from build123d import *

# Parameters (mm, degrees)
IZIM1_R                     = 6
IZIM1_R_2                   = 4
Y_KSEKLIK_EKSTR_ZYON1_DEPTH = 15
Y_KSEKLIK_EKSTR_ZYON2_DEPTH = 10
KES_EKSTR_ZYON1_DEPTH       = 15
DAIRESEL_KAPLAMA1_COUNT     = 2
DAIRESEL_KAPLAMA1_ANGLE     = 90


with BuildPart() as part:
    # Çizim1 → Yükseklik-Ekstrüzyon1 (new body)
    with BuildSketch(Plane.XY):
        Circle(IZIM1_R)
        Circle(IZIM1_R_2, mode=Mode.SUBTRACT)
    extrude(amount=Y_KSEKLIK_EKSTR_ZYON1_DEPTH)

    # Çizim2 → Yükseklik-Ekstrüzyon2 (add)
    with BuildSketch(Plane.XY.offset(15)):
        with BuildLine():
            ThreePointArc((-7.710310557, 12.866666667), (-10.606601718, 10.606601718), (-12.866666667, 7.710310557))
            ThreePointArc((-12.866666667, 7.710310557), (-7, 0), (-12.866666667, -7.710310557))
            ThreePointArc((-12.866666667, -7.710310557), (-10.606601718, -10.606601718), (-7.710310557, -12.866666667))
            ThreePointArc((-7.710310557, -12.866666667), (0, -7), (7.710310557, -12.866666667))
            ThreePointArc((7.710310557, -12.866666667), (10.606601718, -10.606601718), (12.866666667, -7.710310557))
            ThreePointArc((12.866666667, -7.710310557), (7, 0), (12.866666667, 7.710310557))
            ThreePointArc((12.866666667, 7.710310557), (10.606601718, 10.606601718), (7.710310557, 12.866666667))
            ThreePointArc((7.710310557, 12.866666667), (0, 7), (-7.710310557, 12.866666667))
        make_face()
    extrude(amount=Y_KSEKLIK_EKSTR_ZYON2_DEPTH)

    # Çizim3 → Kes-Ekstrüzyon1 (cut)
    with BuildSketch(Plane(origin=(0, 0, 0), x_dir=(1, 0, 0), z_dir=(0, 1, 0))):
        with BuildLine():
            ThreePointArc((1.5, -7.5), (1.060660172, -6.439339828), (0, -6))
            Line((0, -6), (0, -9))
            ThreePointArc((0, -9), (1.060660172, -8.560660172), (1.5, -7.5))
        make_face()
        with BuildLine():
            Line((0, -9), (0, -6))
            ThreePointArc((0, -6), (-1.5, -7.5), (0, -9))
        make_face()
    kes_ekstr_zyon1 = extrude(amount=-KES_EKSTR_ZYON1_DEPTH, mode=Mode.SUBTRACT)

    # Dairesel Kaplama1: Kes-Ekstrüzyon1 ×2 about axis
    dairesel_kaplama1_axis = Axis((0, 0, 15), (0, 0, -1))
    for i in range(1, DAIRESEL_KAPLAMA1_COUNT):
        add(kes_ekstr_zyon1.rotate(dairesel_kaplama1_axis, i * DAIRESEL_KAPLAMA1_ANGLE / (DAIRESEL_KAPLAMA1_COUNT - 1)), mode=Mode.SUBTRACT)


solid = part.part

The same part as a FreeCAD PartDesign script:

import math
import FreeCAD as App
import Part
import Sketcher
Q = App.Units.Quantity

doc = App.newDocument("Part")
body = doc.addObject("PartDesign::Body", "Body")

sketch1 = body.newObject("Sketcher::SketchObject", "Sketch")
sketch1.AttachmentSupport = (doc.getObject("XY_Plane"), [""])
sketch1.MapMode = "FlatFace"
sketch1.addGeometry([
    Part.Circle(App.Vector(0, 0, 0), App.Vector(0, 0, 1), 6),
    Part.Circle(App.Vector(0, 0, 0), App.Vector(0, 0, 1), 4),
], False)
sketch1.addConstraint([
    Sketcher.Constraint("Coincident", 0, 3, -1, 1),
    Sketcher.Constraint("Coincident", 1, 3, -1, 1),
    Sketcher.Constraint("Diameter", 0, Q("12 mm")),
    Sketcher.Constraint("Diameter", 1, Q("8 mm")),
])
pad1 = body.newObject("PartDesign::Pad", "Pad")
pad1.Profile = sketch1
pad1.Length = 15

sketch2 = body.newObject("Sketcher::SketchObject", "Sketch001")
sketch2.AttachmentSupport = (doc.getObject("XY_Plane"), [""])
sketch2.MapMode = "FlatFace"
sketch2.AttachmentOffset = App.Placement(App.Vector(0, 0, 15), App.Rotation())
sketch2.addGeometry([
    Part.ArcOfCircle(Part.Circle(App.Vector(0, 0, 0), App.Vector(0, 0, 1), 15), math.radians(121), math.radians(149)),
    Part.ArcOfCircle(Part.Circle(App.Vector(-15, 0, 0), App.Vector(0, 0, 1), 8), math.radians(-75), math.radians(75)),
    Part.ArcOfCircle(Part.Circle(App.Vector(0, 0, 0), App.Vector(0, 0, 1), 15), math.radians(-149), math.radians(-121)),
    Part.ArcOfCircle(Part.Circle(App.Vector(0, -15, 0), App.Vector(0, 0, 1), 8), math.radians(15), math.radians(165)),
    Part.ArcOfCircle(Part.Circle(App.Vector(0, 0, 0), App.Vector(0, 0, 1), 15), math.radians(-59), math.radians(-31)),
    Part.ArcOfCircle(Part.Circle(App.Vector(15, 0, 0), App.Vector(0, 0, 1), 8), math.radians(105), math.radians(255)),
    Part.ArcOfCircle(Part.Circle(App.Vector(0, 0, 0), App.Vector(0, 0, 1), 15), math.radians(31), math.radians(59)),
    Part.ArcOfCircle(Part.Circle(App.Vector(0, 15, 0), App.Vector(0, 0, 1), 8), math.radians(-165), math.radians(-15)),
], False)
sketch2.addConstraint([
    Sketcher.Constraint("Coincident", 0, 2, 1, 2),
    Sketcher.Constraint("Coincident", 1, 1, 2, 1),
    Sketcher.Constraint("Coincident", 2, 2, 3, 2),
    Sketcher.Constraint("Coincident", 3, 1, 4, 1),
    Sketcher.Constraint("Coincident", 4, 2, 5, 2),
    Sketcher.Constraint("Coincident", 5, 1, 6, 1),
    Sketcher.Constraint("Coincident", 6, 2, 7, 2),
    Sketcher.Constraint("Coincident", 7, 1, 0, 1),
    Sketcher.Constraint("Coincident", 0, 3, -1, 1),
    Sketcher.Constraint("Coincident", 2, 3, -1, 1),
    Sketcher.Constraint("Coincident", 4, 3, -1, 1),
    Sketcher.Constraint("Coincident", 6, 3, -1, 1),
    Sketcher.Constraint("Equal", 0, 2),
    Sketcher.Constraint("Equal", 1, 3),
    Sketcher.Constraint("Equal", 2, 4),
    Sketcher.Constraint("Equal", 3, 5),
    Sketcher.Constraint("Equal", 4, 6),
    Sketcher.Constraint("Equal", 5, 7),
    Sketcher.Constraint("Symmetric", 1, 3, 5, 3, -1, 1),
    Sketcher.Constraint("Symmetric", 3, 3, 7, 3, -1, 1),
    Sketcher.Constraint("PointOnObject", 1, 3, -1),
    Sketcher.Constraint("PointOnObject", 3, 3, -2),
    Sketcher.Constraint("Radius", 0, Q("15 mm")),
    Sketcher.Constraint("Radius", 1, Q("8 mm")),
    Sketcher.Constraint("DistanceX", 1, 3, -1, 1, Q("15 mm")),
    Sketcher.Constraint("DistanceY", 3, 3, -1, 1, Q("15 mm")),
])
pad2 = body.newObject("PartDesign::Pad", "Pad001")
pad2.Profile = sketch2
pad2.Length = 10

sketch3 = body.newObject("Sketcher::SketchObject", "Sketch002")
sketch3.AttachmentSupport = (doc.getObject("XZ_Plane"), [""])
sketch3.MapMode = "FlatFace"
sketch3.addGeometry([
    Part.ArcOfCircle(Part.Circle(App.Vector(0, 7.5, 0), App.Vector(0, 0, 1), 1.5), math.radians(-90), math.radians(0)),
    Part.ArcOfCircle(Part.Circle(App.Vector(0, 7.5, 0), App.Vector(0, 0, 1), 1.5), math.radians(90), math.radians(270)),
    Part.ArcOfCircle(Part.Circle(App.Vector(0, 7.5, 0), App.Vector(0, 0, 1), 1.5), math.radians(0), math.radians(90)),
], False)
sketch3.addConstraint([
    Sketcher.Constraint("Tangent", 0, 1, 1, 2),
    Sketcher.Constraint("Tangent", 1, 1, 2, 2),
    Sketcher.Constraint("Tangent", 2, 1, 0, 2),
    Sketcher.Constraint("PointOnObject", 0, 3, -2),
    Sketcher.Constraint("PointOnObject", 0, 1, -2),
    Sketcher.Constraint("PointOnObject", 1, 1, -2),
    Sketcher.Constraint("Horizontal", 1, 3, 2, 1),
    Sketcher.Constraint("Radius", 0, Q("1.5 mm")),
    Sketcher.Constraint("DistanceY", -1, 1, 0, 1, Q("6 mm")),
])
pocket1 = body.newObject("PartDesign::Pocket", "Pocket")
pocket1.Profile = sketch3
pocket1.Length = 15
pocket1.Reversed = True
doc.recompute()

polarpattern = body.newObject("PartDesign::PolarPattern", "PolarPattern")
polarpattern.Originals = [pocket1]
polarpattern.Axis = (doc.getObject("Z_Axis"), [""])
polarpattern.Angle = 90
polarpattern.Occurrences = 2
polarpattern.Reversed = True
body.Tip = polarpattern

doc.recompute()
